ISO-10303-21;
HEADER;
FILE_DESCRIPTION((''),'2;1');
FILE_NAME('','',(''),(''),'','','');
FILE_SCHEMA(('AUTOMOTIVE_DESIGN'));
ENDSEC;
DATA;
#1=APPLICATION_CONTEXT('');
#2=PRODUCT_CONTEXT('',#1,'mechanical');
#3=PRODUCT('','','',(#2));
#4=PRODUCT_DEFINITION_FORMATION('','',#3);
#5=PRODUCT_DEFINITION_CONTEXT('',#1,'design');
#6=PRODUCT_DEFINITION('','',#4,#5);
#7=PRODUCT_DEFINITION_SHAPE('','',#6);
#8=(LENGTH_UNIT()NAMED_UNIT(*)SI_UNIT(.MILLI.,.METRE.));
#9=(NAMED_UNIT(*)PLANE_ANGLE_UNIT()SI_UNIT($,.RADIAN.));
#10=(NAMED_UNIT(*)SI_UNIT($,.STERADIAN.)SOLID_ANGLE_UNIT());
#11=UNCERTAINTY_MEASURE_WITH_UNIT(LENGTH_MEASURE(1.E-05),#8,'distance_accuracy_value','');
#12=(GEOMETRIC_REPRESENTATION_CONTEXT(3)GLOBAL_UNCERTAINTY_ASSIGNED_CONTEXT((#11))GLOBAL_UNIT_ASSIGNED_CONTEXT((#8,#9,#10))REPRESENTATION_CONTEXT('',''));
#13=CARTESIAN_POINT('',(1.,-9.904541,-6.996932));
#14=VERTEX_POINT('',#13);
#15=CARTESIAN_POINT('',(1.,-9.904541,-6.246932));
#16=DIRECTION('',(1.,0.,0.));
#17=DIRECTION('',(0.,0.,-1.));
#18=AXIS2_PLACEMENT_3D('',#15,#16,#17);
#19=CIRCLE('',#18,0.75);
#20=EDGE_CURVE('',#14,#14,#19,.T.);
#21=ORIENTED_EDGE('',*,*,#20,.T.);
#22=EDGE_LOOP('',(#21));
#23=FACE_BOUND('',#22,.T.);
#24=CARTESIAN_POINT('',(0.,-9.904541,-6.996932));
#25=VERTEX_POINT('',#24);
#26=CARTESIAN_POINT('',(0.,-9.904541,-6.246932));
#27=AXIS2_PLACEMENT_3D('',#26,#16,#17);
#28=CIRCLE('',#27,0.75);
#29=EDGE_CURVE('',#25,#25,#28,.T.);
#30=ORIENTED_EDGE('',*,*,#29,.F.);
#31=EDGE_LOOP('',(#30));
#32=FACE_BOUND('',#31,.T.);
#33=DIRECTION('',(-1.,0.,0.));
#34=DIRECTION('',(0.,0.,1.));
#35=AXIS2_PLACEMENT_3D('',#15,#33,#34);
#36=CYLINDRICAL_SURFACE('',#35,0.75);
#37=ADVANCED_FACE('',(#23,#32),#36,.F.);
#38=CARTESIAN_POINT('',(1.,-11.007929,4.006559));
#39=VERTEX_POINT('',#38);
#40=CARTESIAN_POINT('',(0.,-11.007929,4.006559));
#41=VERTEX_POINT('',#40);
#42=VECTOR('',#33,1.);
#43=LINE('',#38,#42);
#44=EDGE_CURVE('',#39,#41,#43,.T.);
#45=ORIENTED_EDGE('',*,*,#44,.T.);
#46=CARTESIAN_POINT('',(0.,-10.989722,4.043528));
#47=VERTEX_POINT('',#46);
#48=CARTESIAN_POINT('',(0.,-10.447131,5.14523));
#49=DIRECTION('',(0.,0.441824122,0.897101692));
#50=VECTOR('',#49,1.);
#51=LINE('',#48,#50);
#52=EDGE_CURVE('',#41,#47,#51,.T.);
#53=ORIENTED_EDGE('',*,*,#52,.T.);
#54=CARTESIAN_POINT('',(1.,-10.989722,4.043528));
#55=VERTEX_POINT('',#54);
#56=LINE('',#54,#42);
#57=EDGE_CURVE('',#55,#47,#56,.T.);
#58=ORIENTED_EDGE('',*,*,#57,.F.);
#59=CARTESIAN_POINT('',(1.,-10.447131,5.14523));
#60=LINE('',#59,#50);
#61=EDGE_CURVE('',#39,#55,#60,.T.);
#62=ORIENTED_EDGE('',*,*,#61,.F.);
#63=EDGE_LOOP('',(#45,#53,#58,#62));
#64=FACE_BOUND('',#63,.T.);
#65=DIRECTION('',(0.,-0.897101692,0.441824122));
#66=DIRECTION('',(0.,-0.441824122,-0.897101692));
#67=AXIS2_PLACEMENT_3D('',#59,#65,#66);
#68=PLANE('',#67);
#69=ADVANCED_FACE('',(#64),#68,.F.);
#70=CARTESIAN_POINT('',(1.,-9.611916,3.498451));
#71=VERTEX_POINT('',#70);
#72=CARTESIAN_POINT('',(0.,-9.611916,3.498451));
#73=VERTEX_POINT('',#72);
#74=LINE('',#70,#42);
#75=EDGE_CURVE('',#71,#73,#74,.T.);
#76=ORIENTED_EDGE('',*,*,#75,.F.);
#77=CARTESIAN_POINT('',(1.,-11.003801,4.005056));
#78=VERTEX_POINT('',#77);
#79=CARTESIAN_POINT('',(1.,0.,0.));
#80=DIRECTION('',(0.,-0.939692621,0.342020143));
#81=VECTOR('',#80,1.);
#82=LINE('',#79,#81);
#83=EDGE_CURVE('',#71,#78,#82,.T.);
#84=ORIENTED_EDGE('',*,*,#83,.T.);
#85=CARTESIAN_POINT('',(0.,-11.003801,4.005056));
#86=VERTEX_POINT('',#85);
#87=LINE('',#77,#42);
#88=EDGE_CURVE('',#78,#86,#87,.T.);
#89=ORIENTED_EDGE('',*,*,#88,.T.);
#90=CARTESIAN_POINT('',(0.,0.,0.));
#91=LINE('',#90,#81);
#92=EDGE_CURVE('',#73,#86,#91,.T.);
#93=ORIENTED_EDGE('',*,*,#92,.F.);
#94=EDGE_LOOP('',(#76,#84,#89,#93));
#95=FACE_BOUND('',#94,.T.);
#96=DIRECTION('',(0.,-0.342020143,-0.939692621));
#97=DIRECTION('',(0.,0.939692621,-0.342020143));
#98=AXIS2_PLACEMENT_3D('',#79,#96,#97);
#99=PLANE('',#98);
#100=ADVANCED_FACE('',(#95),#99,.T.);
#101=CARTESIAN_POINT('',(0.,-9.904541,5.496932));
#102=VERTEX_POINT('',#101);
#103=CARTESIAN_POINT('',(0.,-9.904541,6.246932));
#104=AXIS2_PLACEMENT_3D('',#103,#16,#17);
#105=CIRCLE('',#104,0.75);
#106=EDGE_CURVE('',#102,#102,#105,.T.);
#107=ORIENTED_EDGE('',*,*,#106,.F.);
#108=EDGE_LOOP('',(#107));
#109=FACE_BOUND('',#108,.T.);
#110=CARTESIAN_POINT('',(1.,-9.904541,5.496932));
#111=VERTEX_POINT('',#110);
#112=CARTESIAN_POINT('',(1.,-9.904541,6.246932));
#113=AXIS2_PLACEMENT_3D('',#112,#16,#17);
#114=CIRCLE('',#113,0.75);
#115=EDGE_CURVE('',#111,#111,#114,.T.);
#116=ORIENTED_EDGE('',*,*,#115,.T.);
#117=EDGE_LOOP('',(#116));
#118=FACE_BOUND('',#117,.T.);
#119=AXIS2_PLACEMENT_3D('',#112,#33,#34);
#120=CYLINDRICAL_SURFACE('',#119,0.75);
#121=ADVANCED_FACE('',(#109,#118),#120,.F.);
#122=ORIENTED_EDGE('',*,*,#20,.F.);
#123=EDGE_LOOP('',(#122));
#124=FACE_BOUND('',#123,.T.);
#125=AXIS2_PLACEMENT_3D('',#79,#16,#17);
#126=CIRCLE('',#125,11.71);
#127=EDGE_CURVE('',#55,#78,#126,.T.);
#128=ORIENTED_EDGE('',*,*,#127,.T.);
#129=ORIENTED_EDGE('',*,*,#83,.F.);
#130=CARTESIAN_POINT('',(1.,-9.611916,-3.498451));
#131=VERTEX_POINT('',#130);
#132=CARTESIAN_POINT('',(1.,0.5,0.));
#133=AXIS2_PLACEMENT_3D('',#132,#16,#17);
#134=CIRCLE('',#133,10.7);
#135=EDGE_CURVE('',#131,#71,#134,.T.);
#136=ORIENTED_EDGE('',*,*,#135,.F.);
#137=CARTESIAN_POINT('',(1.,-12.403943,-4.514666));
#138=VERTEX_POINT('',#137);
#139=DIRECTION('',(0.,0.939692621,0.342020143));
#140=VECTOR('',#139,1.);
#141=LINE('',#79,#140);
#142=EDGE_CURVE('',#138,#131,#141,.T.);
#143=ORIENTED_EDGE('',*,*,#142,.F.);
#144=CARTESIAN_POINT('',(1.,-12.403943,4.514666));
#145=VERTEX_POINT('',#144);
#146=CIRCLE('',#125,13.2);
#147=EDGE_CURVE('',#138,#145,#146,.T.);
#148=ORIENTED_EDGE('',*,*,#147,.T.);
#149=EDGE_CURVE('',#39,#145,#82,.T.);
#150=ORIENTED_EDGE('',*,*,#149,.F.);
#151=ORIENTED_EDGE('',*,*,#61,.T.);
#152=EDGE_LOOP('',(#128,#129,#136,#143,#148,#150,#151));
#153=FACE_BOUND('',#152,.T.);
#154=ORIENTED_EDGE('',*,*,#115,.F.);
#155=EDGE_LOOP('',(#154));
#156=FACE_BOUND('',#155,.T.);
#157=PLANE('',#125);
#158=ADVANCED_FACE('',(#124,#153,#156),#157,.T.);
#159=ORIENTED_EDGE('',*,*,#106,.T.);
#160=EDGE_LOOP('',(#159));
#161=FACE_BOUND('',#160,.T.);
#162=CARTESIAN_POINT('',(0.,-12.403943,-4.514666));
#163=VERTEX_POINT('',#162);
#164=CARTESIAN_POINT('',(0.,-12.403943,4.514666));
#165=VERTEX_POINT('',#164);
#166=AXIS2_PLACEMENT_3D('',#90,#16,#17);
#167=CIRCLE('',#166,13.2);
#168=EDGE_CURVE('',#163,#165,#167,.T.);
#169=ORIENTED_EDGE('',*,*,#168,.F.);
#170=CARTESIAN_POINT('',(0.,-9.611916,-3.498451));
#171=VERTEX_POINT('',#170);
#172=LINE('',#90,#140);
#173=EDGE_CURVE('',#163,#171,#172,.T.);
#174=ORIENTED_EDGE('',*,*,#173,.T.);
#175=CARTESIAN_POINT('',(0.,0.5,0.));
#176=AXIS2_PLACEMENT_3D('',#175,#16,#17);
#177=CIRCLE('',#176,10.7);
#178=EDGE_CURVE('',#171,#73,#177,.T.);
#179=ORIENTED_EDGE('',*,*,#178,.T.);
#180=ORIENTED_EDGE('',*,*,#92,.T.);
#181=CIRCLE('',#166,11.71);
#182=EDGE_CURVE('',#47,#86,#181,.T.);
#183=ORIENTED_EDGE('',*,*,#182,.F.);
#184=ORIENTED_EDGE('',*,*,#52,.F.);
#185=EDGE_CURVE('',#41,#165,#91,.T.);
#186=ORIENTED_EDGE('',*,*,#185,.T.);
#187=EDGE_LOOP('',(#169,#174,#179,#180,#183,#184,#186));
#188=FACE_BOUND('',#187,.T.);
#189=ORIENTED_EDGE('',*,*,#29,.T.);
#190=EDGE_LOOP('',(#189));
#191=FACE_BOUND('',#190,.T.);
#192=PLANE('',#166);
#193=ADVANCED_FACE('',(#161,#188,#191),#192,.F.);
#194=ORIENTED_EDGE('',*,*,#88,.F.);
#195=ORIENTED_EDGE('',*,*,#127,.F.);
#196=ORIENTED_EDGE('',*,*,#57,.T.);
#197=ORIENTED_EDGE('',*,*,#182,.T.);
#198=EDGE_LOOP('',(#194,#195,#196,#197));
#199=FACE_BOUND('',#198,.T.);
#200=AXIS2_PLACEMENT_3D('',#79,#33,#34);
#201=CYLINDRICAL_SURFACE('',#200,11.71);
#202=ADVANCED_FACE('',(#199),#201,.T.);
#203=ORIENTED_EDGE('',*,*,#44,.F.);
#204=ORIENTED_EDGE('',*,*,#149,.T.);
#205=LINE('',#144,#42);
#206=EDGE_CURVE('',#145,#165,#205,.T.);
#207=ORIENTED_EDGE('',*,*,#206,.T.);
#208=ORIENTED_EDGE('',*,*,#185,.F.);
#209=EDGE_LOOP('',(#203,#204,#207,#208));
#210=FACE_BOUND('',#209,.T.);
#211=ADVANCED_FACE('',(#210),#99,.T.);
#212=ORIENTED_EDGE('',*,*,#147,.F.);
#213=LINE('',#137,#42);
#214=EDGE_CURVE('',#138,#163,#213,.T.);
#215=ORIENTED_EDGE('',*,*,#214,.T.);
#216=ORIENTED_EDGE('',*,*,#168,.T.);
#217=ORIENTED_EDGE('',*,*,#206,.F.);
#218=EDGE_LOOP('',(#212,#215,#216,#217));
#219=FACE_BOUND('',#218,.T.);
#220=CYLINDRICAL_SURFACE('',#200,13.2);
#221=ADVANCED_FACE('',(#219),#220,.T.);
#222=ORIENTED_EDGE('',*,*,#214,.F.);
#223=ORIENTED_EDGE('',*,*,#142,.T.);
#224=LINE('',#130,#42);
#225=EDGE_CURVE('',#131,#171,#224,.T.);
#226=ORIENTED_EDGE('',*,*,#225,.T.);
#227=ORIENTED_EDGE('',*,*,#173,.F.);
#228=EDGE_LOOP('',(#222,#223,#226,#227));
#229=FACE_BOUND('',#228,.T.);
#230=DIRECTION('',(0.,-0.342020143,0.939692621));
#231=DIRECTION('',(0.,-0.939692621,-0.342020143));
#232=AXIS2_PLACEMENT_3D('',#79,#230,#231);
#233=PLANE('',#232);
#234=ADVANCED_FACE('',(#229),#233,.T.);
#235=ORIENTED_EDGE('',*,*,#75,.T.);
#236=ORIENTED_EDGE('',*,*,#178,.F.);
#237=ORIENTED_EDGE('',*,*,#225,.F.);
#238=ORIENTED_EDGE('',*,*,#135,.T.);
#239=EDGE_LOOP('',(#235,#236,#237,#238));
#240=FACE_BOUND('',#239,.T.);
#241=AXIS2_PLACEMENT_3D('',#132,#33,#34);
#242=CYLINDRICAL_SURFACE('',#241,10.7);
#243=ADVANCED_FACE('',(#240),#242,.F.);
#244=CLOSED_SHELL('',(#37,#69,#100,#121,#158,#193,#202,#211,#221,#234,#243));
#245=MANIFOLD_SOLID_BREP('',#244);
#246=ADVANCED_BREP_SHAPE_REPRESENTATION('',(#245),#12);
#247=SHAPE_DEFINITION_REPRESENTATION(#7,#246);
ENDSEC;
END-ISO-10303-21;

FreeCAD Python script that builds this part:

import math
import FreeCAD as App
import Part
import Sketcher

V = App.Vector
Q = App.Units.Quantity

doc = App.newDocument("Part")
body = doc.addObject("PartDesign::Body", "Body")

# Sketch on YZ plane
sketch1 = body.newObject("Sketcher::SketchObject", "Sketch")
sketch1.AttachmentSupport = (doc.getObject("YZ_Plane"), [""])
sketch1.MapMode = "FlatFace"
sketch1.addGeometry(Part.LineSegment(V(-11.004, 4.005, 0), V(-9.612, 3.498, 0)), False)
sketch1.addGeometry(Part.ArcOfCircle(Part.Circle(V(0.5, 0, 0), V(0, 0, 1), 10.7), math.radians(-161), math.radians(161)), False)
sketch1.addGeometry(Part.LineSegment(V(-9.612, -3.498, 0), V(-12.404, -4.515, 0)), False)
sketch1.addGeometry(Part.ArcOfCircle(Part.Circle(V(0, 0, 0), V(0, 0, 1), 13.2), math.radians(-160), math.radians(160)), False)
sketch1.addGeometry(Part.LineSegment(V(-12.404, 4.515, 0), V(-11.008, 4.007, 0)), False)
sketch1.addGeometry(Part.LineSegment(V(-11.008, 4.007, 0), V(-10.99, 4.044, 0)), False)
sketch1.addGeometry(Part.ArcOfCircle(Part.Circle(V(0, 0, 0), V(0, 0, 1), 11.71), math.radians(159.8), math.radians(160)), False)
sketch1.addGeometry(Part.Circle(V(-9.905, 6.247, 0), V(0, 0, 1), 0.75), False)
sketch1.addGeometry(Part.Circle(V(-9.905, -6.247, 0), V(0, 0, 1), 0.75), False)
sketch1.addConstraint(Sketcher.Constraint("Coincident", 0, 2, 1, 2))
sketch1.addConstraint(Sketcher.Constraint("Coincident", 1, 1, 2, 1))
sketch1.addConstraint(Sketcher.Constraint("Coincident", 2, 2, 3, 1))
sketch1.addConstraint(Sketcher.Constraint("Coincident", 3, 2, 4, 1))
sketch1.addConstraint(Sketcher.Constraint("Coincident", 4, 2, 5, 1))
sketch1.addConstraint(Sketcher.Constraint("Coincident", 5, 2, 6, 1))
sketch1.addConstraint(Sketcher.Constraint("Coincident", 6, 2, 0, 1))
sketch1.addConstraint(Sketcher.Constraint("Coincident", 3, 3, -1, 1))
sketch1.addConstraint(Sketcher.Constraint("Equal", 7, 8))
sketch1.addConstraint(Sketcher.Constraint("Symmetric", 7, 3, 8, 3, -1))
sketch1.addConstraint(Sketcher.Constraint("Symmetric", 0, 2, 1, 1, -1))
sketch1.addConstraint(Sketcher.Constraint("Parallel", 0, 4))
sketch1.addConstraint(Sketcher.Constraint("Vertical", 2, 2, 3, 2))
sketch1.addConstraint(Sketcher.Constraint("Diameter", 7, Q("1.5 mm")))
sketch1.addConstraint(Sketcher.Constraint("Radius", 1, Q("10.7 mm")))
sketch1.addConstraint(Sketcher.Constraint("Radius", 3, Q("13.2 mm")))
sketch1.addConstraint(Sketcher.Constraint("Angle", 0, Q("-20 deg")))
sketch1.addConstraint(Sketcher.Constraint("Angle", 2, Q("-160 deg")))
sketch1.addConstraint(Sketcher.Constraint("DistanceX", -1, 1, 1, 3, Q("0.5 mm")))
sketch1.addConstraint(Sketcher.Constraint("Radius", 6, Q("11.710209 mm")))
sketch1.addConstraint(Sketcher.Constraint("DistanceX", 6, 2, -1, 1, Q("11.003801 mm")))
sketch1.addConstraint(Sketcher.Constraint("DistanceX", 2, 2, 8, 3, Q("2.499401 mm")))
sketch1.addConstraint(Sketcher.Constraint("DistanceY", 2, 2, 7, 3, Q("10.761598 mm")))
sketch1.addConstraint(Sketcher.Constraint("Distance", 5, Q("0.04121 mm")))
sketch1.addConstraint(Sketcher.Constraint("DistanceX", 7, 3, -1, 1, Q("9.904541 mm")))
sketch1.addConstraint(Sketcher.Constraint("DistanceX", 4, 2, -1, 1, Q("11.007929 mm")))
sketch1.addConstraint(Sketcher.Constraint("DistanceX", 5, 2, -1, 1, Q("10.989722 mm")))
pad1 = body.newObject("PartDesign::Pad", "Pad")
pad1.Profile = sketch1
pad1.Length = 1

doc.recompute()
